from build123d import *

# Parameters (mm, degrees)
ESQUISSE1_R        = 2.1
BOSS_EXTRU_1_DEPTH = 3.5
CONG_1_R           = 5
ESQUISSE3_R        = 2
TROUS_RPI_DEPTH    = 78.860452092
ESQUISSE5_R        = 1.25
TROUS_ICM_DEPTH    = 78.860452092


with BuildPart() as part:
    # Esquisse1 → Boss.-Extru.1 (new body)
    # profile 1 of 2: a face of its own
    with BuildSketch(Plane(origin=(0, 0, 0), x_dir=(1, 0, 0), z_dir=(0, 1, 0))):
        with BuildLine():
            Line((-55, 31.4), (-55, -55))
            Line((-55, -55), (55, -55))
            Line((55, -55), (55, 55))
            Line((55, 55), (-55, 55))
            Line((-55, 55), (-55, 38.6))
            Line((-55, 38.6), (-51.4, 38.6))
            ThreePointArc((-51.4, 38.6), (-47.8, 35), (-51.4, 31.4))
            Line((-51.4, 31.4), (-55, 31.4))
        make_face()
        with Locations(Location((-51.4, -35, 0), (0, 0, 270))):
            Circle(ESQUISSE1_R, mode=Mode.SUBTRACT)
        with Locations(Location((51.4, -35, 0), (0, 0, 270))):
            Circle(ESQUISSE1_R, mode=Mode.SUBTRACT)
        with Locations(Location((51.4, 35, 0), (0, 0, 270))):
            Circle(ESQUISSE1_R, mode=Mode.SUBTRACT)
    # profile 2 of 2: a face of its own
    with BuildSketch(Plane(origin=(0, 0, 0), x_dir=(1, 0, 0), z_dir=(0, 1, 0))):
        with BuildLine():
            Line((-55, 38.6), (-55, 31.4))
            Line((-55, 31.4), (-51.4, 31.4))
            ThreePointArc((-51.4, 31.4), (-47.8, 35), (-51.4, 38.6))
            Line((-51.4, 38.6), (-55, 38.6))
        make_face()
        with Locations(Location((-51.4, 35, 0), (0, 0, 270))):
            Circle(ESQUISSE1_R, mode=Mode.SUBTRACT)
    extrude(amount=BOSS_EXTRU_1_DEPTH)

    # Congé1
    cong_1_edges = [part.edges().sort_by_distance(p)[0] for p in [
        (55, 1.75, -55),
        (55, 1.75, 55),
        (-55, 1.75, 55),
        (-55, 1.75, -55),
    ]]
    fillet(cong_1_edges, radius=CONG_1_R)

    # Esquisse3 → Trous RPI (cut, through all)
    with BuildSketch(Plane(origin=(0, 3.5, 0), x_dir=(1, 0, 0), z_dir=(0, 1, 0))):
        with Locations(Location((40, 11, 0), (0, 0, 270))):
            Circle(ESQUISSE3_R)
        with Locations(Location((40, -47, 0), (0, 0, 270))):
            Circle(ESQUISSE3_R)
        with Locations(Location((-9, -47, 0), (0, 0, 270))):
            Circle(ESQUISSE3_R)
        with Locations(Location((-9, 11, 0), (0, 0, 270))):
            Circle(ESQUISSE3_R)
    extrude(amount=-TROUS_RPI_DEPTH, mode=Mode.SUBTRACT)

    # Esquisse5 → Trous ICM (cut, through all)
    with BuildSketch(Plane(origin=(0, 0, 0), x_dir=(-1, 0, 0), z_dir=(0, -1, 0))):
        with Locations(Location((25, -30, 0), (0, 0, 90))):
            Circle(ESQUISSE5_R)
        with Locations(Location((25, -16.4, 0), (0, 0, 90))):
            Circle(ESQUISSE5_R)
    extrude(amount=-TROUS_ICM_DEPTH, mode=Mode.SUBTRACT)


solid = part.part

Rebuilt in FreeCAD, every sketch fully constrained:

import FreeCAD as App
import Part
import Sketcher
from FreeCAD import Vector


def edges_at(feature, points):
    """Names of the edges that pass closest to the given points."""
    edges = feature.Shape.Edges
    near = lambda p: min(range(len(edges)), key=lambda i: edges[i].distToShape(Part.Vertex(*p))[0])
    return sorted({f"Edge{near(p) + 1}" for p in points})


def add_polygon(sketch, points):
    """Adds a closed chain of lines whose ends are joined by coincident constraints."""
    first, n = sketch.GeometryCount, len(points)
    for a, b in zip(points, points[1:] + points[:1]):
        sketch.addGeometry(Part.LineSegment(App.Vector(*a, 0), App.Vector(*b, 0)), False)
    for i in range(n):
        sketch.addConstraint(Sketcher.Constraint("Coincident", first + i, 2, first + (i + 1) % n, 1))

doc = App.newDocument("Part")
body = doc.addObject("PartDesign::Body", "Body")

sketch1 = body.newObject("Sketcher::SketchObject", "Sketch")
sketch1.AttachmentSupport = (doc.getObject("XZ_Plane"), [""])
sketch1.MapMode = "FlatFace"
add_polygon(sketch1, [(-55, 55), (55, 55), (55, -55), (-55, -55)])
sketch1.addGeometry(Part.Circle(Vector(-51.4, 35, 0), Vector(0, 0, 1), 2.1), False)
sketch1.addGeometry(Part.Circle(Vector(51.4, 35, 0), Vector(0, 0, 1), 2.1), False)
sketch1.addGeometry(Part.Circle(Vector(51.4, -35, 0), Vector(0, 0, 1), 2.1), False)
sketch1.addGeometry(Part.Circle(Vector(-51.4, -35, 0), Vector(0, 0, 1), 2.1), False)
sketch1.addConstraint(Sketcher.Constraint("Horizontal", 0))
sketch1.addConstraint(Sketcher.Constraint("Vertical", 1))
sketch1.addConstraint(Sketcher.Constraint("Horizontal", 2))
sketch1.addConstraint(Sketcher.Constraint("Vertical", 3))
sketch1.addConstraint(Sketcher.Constraint("Equal", 4, 5))
sketch1.addConstraint(Sketcher.Constraint("Equal", 5, 6))
sketch1.addConstraint(Sketcher.Constraint("Equal", 6, 7))
sketch1.addConstraint(Sketcher.Constraint("Symmetric", 4, 3, 6, 3, -1, 1))
sketch1.addConstraint(Sketcher.Constraint("Symmetric", 5, 3, 7, 3, -1, 1))
sketch1.addConstraint(Sketcher.Constraint("Symmetric", 0, 2, 2, 2, -1, 1))
sketch1.addConstraint(Sketcher.Constraint("Symmetric", 4, 3, 5, 3, -2))
sketch1.addConstraint(Sketcher.Constraint("Equal", 2, 1))
sketch1.addConstraint(Sketcher.Constraint("Diameter", 4, 4.2))
sketch1.addConstraint(Sketcher.Constraint("DistanceX", 0, 1, 0, 2, 110.0))
sketch1.addConstraint(Sketcher.Constraint("DistanceY", -1, 1, 4, 3, 35.0))
sketch1.addConstraint(Sketcher.Constraint("DistanceX", 4, 3, -1, 1, 51.4))
pad1 = body.newObject("PartDesign::Pad", "Pad")
pad1.Profile = sketch1
pad1.Length = 3.5
pad1.Reversed = True
doc.recompute()

fillet = body.newObject("PartDesign::Fillet", "Fillet")
fillet.Base = (pad1, edges_at(pad1, [
    (55, 1.75, -55),
    (55, 1.75, 55),
    (-55, 1.75, 55),
    (-55, 1.75, -55),
]))
fillet.Radius = 5

sketch2 = body.newObject("Sketcher::SketchObject", "Sketch001")
sketch2.AttachmentSupport = (doc.getObject("XZ_Plane"), [""])
sketch2.MapMode = "FlatFace"
sketch2.AttachmentOffset = App.Placement(Vector(0, 0, -3.5), App.Rotation())
sketch2.addGeometry(Part.Circle(Vector(40, -11, 0), Vector(0, 0, 1), 2), False)
sketch2.addGeometry(Part.Circle(Vector(40, 47, 0), Vector(0, 0, 1), 2), False)
sketch2.addGeometry(Part.Circle(Vector(-9, 47, 0), Vector(0, 0, 1), 2), False)
sketch2.addGeometry(Part.Circle(Vector(-9, -11, 0), Vector(0, 0, 1), 2), False)
sketch2.addConstraint(Sketcher.Constraint("Equal", 0, 1))
sketch2.addConstraint(Sketcher.Constraint("Equal", 1, 2))
sketch2.addConstraint(Sketcher.Constraint("Equal", 2, 3))
sketch2.addConstraint(Sketcher.Constraint("Horizontal", 1, 3, 2, 3))
sketch2.addConstraint(Sketcher.Constraint("Horizontal", 0, 3, 3, 3))
sketch2.addConstraint(Sketcher.Constraint("Vertical", 0, 3, 1, 3))
sketch2.addConstraint(Sketcher.Constraint("Vertical", 2, 3, 3, 3))
sketch2.addConstraint(Sketcher.Constraint("Diameter", 0, 4.0))
sketch2.addConstraint(Sketcher.Constraint("DistanceX", -1, 1, 0, 3, 40.0))
sketch2.addConstraint(Sketcher.Constraint("DistanceY", 0, 3, -1, 1, 11.0))
sketch2.addConstraint(Sketcher.Constraint("DistanceY", -1, 1, 1, 3, 47.0))
sketch2.addConstraint(Sketcher.Constraint("DistanceX", 2, 3, -1, 1, 9.0))
pocket1 = body.newObject("PartDesign::Pocket", "Pocket")
pocket1.Profile = sketch2
pocket1.Type = "ThroughAll"
pocket1.Reversed = True

sketch3 = body.newObject("Sketcher::SketchObject", "Sketch002")
sketch3.AttachmentSupport = (doc.getObject("XZ_Plane"), [""])
sketch3.MapMode = "FlatFace"
sketch3.addGeometry(Part.Circle(Vector(-25, 30, 0), Vector(0, 0, 1), 1.25), False)
sketch3.addGeometry(Part.Circle(Vector(-25, 16.4, 0), Vector(0, 0, 1), 1.25), False)
sketch3.addConstraint(Sketcher.Constraint("Equal", 0, 1))
sketch3.addConstraint(Sketcher.Constraint("Vertical", 0, 3, 1, 3))
sketch3.addConstraint(Sketcher.Constraint("Diameter", 0, 2.5))
sketch3.addConstraint(Sketcher.Constraint("DistanceX", 0, 3, -1, 1, 25.0))
sketch3.addConstraint(Sketcher.Constraint("DistanceY", -1, 1, 0, 3, 30.0))
sketch3.addConstraint(Sketcher.Constraint("DistanceY", -1, 1, 1, 3, 16.4))
pocket2 = body.newObject("PartDesign::Pocket", "Pocket001")
pocket2.Profile = sketch3
pocket2.Type = "ThroughAll"

doc.recompute()
